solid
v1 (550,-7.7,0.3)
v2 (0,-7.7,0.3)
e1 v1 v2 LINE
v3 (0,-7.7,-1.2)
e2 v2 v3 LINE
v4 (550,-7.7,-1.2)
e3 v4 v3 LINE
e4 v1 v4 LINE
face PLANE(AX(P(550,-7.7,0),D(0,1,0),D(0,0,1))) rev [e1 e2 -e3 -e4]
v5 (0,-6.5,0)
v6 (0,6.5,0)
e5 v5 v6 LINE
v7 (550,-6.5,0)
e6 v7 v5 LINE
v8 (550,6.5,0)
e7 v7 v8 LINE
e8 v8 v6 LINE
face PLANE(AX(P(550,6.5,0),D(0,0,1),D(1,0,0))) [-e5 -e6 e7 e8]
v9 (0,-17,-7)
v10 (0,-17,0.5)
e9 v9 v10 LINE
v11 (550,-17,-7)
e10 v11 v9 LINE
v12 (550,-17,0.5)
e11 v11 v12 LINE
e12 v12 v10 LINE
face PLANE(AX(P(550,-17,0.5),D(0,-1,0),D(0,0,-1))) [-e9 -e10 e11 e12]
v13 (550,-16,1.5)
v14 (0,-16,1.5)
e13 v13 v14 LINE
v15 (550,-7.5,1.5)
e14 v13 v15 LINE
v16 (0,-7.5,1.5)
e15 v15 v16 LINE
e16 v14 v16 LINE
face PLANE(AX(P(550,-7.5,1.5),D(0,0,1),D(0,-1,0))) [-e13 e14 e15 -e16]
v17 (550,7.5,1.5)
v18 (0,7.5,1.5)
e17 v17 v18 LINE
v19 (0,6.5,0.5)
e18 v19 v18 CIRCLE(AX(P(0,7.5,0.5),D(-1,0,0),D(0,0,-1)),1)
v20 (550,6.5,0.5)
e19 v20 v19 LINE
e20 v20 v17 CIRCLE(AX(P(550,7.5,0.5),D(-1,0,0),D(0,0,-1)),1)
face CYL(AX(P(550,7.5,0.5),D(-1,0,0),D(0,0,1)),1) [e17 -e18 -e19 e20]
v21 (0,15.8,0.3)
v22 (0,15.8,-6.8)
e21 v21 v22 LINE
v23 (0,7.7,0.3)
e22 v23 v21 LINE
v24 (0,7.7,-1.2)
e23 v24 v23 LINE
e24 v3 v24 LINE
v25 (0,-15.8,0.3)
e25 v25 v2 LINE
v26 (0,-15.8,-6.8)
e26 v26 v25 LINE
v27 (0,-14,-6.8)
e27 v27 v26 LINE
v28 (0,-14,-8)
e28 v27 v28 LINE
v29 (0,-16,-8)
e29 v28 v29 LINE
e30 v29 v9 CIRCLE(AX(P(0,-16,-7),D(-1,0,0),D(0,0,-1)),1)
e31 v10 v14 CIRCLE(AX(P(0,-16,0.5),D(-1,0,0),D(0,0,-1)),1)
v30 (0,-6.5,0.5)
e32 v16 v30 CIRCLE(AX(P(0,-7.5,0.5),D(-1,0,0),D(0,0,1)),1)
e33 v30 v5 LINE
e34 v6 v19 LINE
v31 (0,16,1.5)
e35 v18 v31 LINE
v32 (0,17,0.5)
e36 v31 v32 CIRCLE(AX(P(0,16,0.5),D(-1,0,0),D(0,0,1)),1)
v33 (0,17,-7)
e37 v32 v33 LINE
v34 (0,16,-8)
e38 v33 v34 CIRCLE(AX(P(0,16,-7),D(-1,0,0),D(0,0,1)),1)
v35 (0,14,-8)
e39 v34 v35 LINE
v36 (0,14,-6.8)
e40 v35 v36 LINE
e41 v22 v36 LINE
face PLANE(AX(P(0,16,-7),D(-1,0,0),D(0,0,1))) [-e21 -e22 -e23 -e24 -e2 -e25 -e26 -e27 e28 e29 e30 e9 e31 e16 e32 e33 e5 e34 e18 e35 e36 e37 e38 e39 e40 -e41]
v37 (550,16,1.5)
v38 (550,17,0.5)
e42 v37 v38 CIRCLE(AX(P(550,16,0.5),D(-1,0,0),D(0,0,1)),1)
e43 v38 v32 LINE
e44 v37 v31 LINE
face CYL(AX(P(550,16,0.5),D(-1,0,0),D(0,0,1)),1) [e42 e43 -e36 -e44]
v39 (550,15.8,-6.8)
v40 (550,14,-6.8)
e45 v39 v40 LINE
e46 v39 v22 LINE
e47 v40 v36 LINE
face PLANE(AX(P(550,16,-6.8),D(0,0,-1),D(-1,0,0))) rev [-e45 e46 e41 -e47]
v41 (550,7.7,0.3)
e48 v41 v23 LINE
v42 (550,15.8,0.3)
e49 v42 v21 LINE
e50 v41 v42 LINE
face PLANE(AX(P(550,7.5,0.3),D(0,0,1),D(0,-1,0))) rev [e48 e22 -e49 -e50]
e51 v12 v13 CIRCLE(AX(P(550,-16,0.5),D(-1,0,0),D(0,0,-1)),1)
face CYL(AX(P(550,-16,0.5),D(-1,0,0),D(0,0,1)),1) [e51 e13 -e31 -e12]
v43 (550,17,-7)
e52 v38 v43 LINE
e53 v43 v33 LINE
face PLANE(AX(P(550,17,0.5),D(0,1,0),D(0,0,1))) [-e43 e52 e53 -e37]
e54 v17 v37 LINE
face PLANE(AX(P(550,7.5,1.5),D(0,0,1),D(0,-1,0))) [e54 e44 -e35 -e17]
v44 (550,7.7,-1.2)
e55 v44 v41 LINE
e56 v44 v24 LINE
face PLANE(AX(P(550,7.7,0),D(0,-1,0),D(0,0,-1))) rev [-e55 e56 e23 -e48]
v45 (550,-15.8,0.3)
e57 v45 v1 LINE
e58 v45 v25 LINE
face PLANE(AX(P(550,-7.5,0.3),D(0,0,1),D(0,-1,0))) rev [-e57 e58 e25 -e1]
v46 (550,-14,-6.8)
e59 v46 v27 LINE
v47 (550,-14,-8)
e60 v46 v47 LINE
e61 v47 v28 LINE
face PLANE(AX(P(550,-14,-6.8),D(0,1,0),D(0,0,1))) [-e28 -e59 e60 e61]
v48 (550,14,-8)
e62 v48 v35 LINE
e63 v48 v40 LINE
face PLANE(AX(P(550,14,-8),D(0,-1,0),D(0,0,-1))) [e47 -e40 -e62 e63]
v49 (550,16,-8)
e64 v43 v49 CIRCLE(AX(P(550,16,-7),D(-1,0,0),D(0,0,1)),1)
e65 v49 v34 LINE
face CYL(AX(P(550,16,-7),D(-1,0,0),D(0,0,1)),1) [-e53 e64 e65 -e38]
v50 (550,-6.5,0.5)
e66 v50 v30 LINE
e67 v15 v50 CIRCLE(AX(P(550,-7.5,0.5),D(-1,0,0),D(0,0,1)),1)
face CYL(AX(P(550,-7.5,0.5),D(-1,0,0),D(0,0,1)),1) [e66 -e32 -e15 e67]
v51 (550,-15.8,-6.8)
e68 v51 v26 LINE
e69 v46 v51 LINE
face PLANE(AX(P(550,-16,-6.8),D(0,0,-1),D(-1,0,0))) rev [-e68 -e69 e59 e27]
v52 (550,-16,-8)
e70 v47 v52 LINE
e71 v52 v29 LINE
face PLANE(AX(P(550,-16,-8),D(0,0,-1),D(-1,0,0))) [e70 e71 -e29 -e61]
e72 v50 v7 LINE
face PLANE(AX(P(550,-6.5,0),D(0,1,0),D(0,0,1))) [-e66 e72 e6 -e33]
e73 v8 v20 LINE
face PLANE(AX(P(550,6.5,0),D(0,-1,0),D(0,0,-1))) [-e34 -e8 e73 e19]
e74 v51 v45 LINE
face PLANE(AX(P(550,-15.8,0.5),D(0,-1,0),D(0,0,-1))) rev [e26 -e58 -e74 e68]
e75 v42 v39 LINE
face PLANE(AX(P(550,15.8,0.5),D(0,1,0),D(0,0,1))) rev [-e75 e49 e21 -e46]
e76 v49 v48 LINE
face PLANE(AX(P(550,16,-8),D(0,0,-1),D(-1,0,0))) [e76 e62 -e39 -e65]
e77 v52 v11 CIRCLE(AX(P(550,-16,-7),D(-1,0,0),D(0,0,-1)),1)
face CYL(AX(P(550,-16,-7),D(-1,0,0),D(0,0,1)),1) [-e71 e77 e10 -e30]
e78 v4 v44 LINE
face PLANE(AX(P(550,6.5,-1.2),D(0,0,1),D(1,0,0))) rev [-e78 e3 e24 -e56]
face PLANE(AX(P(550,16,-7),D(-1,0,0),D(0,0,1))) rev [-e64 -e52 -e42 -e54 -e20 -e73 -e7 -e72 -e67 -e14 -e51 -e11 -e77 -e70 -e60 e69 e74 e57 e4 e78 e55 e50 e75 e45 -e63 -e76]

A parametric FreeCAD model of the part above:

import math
import FreeCAD as App
import Part
import Sketcher
Q = App.Units.Quantity

doc = App.newDocument("Part")
body = doc.addObject("PartDesign::Body", "Body")

# Sketch on YZ plane
sketch1 = body.newObject("Sketcher::SketchObject", "Sketch")
sketch1.AttachmentSupport = (doc.getObject("YZ_Plane"), [""])
sketch1.MapMode = "FlatFace"
sketch1.addGeometry(Part.LineSegment(App.Vector(14, -8, 0), App.Vector(16, -8, 0)), False)
sketch1.addGeometry(Part.ArcOfCircle(Part.Circle(App.Vector(16, -7, 0), App.Vector(0, 0, 1), 1), math.radians(-90), math.radians(0)), False)
sketch1.addGeometry(Part.LineSegment(App.Vector(17, -7, 0), App.Vector(17, 0.5, 0)), False)
sketch1.addGeometry(Part.ArcOfCircle(Part.Circle(App.Vector(16, 0.5, 0), App.Vector(0, 0, 1), 1), math.radians(0), math.radians(90)), False)
sketch1.addGeometry(Part.LineSegment(App.Vector(16, 1.5, 0), App.Vector(7.5, 1.5, 0)), False)
sketch1.addGeometry(Part.ArcOfCircle(Part.Circle(App.Vector(7.5, 0.5, 0), App.Vector(0, 0, 1), 1), math.radians(90), math.radians(180)), False)
sketch1.addGeometry(Part.LineSegment(App.Vector(6.5, 0.5, 0), App.Vector(6.5, 0, 0)), False)
sketch1.addGeometry(Part.LineSegment(App.Vector(6.5, 0, 0), App.Vector(-6.5, 0, 0)), False)
sketch1.addGeometry(Part.LineSegment(App.Vector(-6.5, 0, 0), App.Vector(-6.5, 0.5, 0)), False)
sketch1.addGeometry(Part.ArcOfCircle(Part.Circle(App.Vector(-7.5, 0.5, 0), App.Vector(0, 0, 1), 1), math.radians(0), math.radians(90)), False)
sketch1.addGeometry(Part.LineSegment(App.Vector(-7.5, 1.5, 0), App.Vector(-16, 1.5, 0)), False)
sketch1.addGeometry(Part.ArcOfCircle(Part.Circle(App.Vector(-16, 0.5, 0), App.Vector(0, 0, 1), 1), math.radians(90), math.radians(180)), False)
sketch1.addGeometry(Part.LineSegment(App.Vector(-17, 0.5, 0), App.Vector(-17, -7, 0)), False)
sketch1.addGeometry(Part.ArcOfCircle(Part.Circle(App.Vector(-16, -7, 0), App.Vector(0, 0, 1), 1), math.radians(-180), math.radians(-90)), False)
sketch1.addGeometry(Part.LineSegment(App.Vector(-16, -8, 0), App.Vector(-14, -8, 0)), False)
sketch1.addGeometry(Part.LineSegment(App.Vector(-14, -8, 0), App.Vector(-14, -6.8, 0)), False)
sketch1.addGeometry(Part.LineSegment(App.Vector(-14, -6.8, 0), App.Vector(-15.8, -6.8, 0)), False)
sketch1.addGeometry(Part.LineSegment(App.Vector(-15.8, -6.8, 0), App.Vector(-15.8, 0.3, 0)), False)
sketch1.addGeometry(Part.LineSegment(App.Vector(-15.8, 0.3, 0), App.Vector(-7.7, 0.3, 0)), False)
sketch1.addGeometry(Part.LineSegment(App.Vector(-7.7, 0.3, 0), App.Vector(-7.7, -1.2, 0)), False)
sketch1.addGeometry(Part.LineSegment(App.Vector(-7.7, -1.2, 0), App.Vector(7.7, -1.2, 0)), False)
sketch1.addGeometry(Part.LineSegment(App.Vector(7.7, -1.2, 0), App.Vector(7.7, 0.3, 0)), False)
sketch1.addGeometry(Part.LineSegment(App.Vector(7.7, 0.3, 0), App.Vector(15.8, 0.3, 0)), False)
sketch1.addGeometry(Part.LineSegment(App.Vector(15.8, 0.3, 0), App.Vector(15.8, -6.8, 0)), False)
sketch1.addGeometry(Part.LineSegment(App.Vector(15.8, -6.8, 0), App.Vector(14, -6.8, 0)), False)
sketch1.addGeometry(Part.LineSegment(App.Vector(14, -6.8, 0), App.Vector(14, -8, 0)), False)
sketch1.addConstraint(Sketcher.Constraint("Tangent", 0, 2, 1, 1))
sketch1.addConstraint(Sketcher.Constraint("Tangent", 1, 2, 2, 1))
sketch1.addConstraint(Sketcher.Constraint("Tangent", 2, 2, 3, 1))
sketch1.addConstraint(Sketcher.Constraint("Tangent", 3, 2, 4, 1))
sketch1.addConstraint(Sketcher.Constraint("Tangent", 4, 2, 5, 1))
sketch1.addConstraint(Sketcher.Constraint("Tangent", 5, 2, 6, 1))
sketch1.addConstraint(Sketcher.Constraint("Coincident", 6, 2, 7, 1))
sketch1.addConstraint(Sketcher.Constraint("Coincident", 7, 2, 8, 1))
sketch1.addConstraint(Sketcher.Constraint("Tangent", 8, 2, 9, 1))
sketch1.addConstraint(Sketcher.Constraint("Tangent", 9, 2, 10, 1))
sketch1.addConstraint(Sketcher.Constraint("Tangent", 10, 2, 11, 1))
sketch1.addConstraint(Sketcher.Constraint("Tangent", 11, 2, 12, 1))
sketch1.addConstraint(Sketcher.Constraint("Tangent", 12, 2, 13, 1))
sketch1.addConstraint(Sketcher.Constraint("Tangent", 13, 2, 14, 1))
sketch1.addConstraint(Sketcher.Constraint("Coincident", 14, 2, 15, 1))
sketch1.addConstraint(Sketcher.Constraint("Coincident", 15, 2, 16, 1))
sketch1.addConstraint(Sketcher.Constraint("Coincident", 16, 2, 17, 1))
sketch1.addConstraint(Sketcher.Constraint("Coincident", 17, 2, 18, 1))
sketch1.addConstraint(Sketcher.Constraint("Coincident", 18, 2, 19, 1))
sketch1.addConstraint(Sketcher.Constraint("Coincident", 19, 2, 20, 1))
sketch1.addConstraint(Sketcher.Constraint("Coincident", 20, 2, 21, 1))
sketch1.addConstraint(Sketcher.Constraint("Coincident", 21, 2, 22, 1))
sketch1.addConstraint(Sketcher.Constraint("Coincident", 22, 2, 23, 1))
sketch1.addConstraint(Sketcher.Constraint("Coincident", 23, 2, 24, 1))
sketch1.addConstraint(Sketcher.Constraint("Coincident", 24, 2, 25, 1))
sketch1.addConstraint(Sketcher.Constraint("Coincident", 25, 2, 0, 1))
sketch1.addConstraint(Sketcher.Constraint("Horizontal", 0))
sketch1.addConstraint(Sketcher.Constraint("Vertical", 2))
sketch1.addConstraint(Sketcher.Constraint("Horizontal", 4))
sketch1.addConstraint(Sketcher.Constraint("Vertical", 6))
sketch1.addConstraint(Sketcher.Constraint("Horizontal", 7))
sketch1.addConstraint(Sketcher.Constraint("Vertical", 8))
sketch1.addConstraint(Sketcher.Constraint("Horizontal", 10))
sketch1.addConstraint(Sketcher.Constraint("Vertical", 12))
sketch1.addConstraint(Sketcher.Constraint("Horizontal", 14))
sketch1.addConstraint(Sketcher.Constraint("Vertical", 15))
sketch1.addConstraint(Sketcher.Constraint("Horizontal", 16))
sketch1.addConstraint(Sketcher.Constraint("Vertical", 17))
sketch1.addConstraint(Sketcher.Constraint("Horizontal", 18))
sketch1.addConstraint(Sketcher.Constraint("Vertical", 19))
sketch1.addConstraint(Sketcher.Constraint("Horizontal", 20))
sketch1.addConstraint(Sketcher.Constraint("Vertical", 21))
sketch1.addConstraint(Sketcher.Constraint("Horizontal", 22))
sketch1.addConstraint(Sketcher.Constraint("Vertical", 23))
sketch1.addConstraint(Sketcher.Constraint("Horizontal", 24))
sketch1.addConstraint(Sketcher.Constraint("Vertical", 25))
sketch1.addConstraint(Sketcher.Constraint("Equal", 1, 3))
sketch1.addConstraint(Sketcher.Constraint("Equal", 3, 5))
sketch1.addConstraint(Sketcher.Constraint("Equal", 5, 9))
sketch1.addConstraint(Sketcher.Constraint("Equal", 9, 11))
sketch1.addConstraint(Sketcher.Constraint("Equal", 11, 13))
sketch1.addConstraint(Sketcher.Constraint("Symmetric", 6, 2, 7, 2, -1, 1))
sketch1.addConstraint(Sketcher.Constraint("Symmetric", 3, 3, 11, 3, -2))
sketch1.addConstraint(Sketcher.Constraint("Symmetric", 18, 2, 21, 2, -2))
sketch1.addConstraint(Sketcher.Constraint("Symmetric", 16, 2, 23, 2, -2))
sketch1.addConstraint(Sketcher.Constraint("Symmetric", 14, 2, 25, 2, -2))
sketch1.addConstraint(Sketcher.Constraint("Radius", 1, Q("1 mm")))
sketch1.addConstraint(Sketcher.Constraint("DistanceX", 0, 1, 0, 2, Q("2 mm")))
sketch1.addConstraint(Sketcher.Constraint("DistanceX", 7, 2, 7, 1, Q("13 mm")))
sketch1.addConstraint(Sketcher.Constraint("DistanceX", 4, 2, 4, 1, Q("8.5 mm")))
sketch1.addConstraint(Sketcher.Constraint("DistanceX", 16, 2, 16, 1, Q("1.8 mm")))
sketch1.addConstraint(Sketcher.Constraint("DistanceX", 18, 1, 18, 2, Q("8.1 mm")))
sketch1.addConstraint(Sketcher.Constraint("DistanceY", 2, 1, 2, 2, Q("7.5 mm")))
sketch1.addConstraint(Sketcher.Constraint("DistanceY", 6, 2, 6, 1, Q("0.5 mm")))
sketch1.addConstraint(Sketcher.Constraint("DistanceY", 15, 1, 15, 2, Q("1.2 mm")))
sketch1.addConstraint(Sketcher.Constraint("DistanceY", 17, 1, 17, 2, Q("7.1 mm")))
sketch1.addConstraint(Sketcher.Constraint("DistanceY", 19, 2, 19, 1, Q("1.5 mm")))
pad1 = body.newObject("PartDesign::Pad", "Pad")
pad1.Profile = sketch1
pad1.Length = 550

doc.recompute()
